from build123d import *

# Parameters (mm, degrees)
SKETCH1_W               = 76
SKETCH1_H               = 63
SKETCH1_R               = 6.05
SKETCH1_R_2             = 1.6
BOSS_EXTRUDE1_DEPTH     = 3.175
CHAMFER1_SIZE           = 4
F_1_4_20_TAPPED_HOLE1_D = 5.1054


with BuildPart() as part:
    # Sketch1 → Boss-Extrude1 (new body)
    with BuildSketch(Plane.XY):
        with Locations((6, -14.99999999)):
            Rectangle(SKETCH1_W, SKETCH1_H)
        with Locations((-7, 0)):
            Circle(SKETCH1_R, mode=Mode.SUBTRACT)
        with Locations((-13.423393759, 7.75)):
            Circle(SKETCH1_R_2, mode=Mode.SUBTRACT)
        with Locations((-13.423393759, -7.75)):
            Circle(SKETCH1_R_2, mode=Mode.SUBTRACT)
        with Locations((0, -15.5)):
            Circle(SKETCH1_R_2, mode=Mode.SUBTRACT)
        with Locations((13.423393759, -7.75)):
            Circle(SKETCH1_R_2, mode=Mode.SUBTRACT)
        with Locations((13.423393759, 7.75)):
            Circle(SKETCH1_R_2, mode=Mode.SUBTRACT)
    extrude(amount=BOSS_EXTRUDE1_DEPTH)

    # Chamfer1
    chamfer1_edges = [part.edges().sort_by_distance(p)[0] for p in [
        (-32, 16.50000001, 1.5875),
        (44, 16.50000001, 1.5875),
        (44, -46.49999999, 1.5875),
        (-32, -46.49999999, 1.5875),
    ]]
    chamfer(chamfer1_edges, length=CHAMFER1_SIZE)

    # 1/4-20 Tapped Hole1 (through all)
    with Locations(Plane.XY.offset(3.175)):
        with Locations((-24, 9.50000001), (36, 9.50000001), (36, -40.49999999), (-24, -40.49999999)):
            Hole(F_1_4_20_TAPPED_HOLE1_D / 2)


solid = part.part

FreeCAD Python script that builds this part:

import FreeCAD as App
import Part
import Sketcher
from FreeCAD import Vector


def edges_at(feature, points):
    """Names of the edges that pass closest to the given points."""
    edges = feature.Shape.Edges
    near = lambda p: min(range(len(edges)), key=lambda i: edges[i].distToShape(Part.Vertex(*p))[0])
    return sorted({f"Edge{near(p) + 1}" for p in points})

doc = App.newDocument("Part")
body = doc.addObject("PartDesign::Body", "Body")

# Sketch on XY plane
sketch1 = doc.addObject("Sketcher::SketchObject", "Sketch")
body.addObject(sketch1)
sketch1.AttachmentSupport = (doc.XY_Plane, [""])
sketch1.MapMode = "FlatFace"
sketch1.addGeometry([
    Part.LineSegment(Vector(-32, 16.5, 0), Vector(-32, -46.5, 0)),  # 0
    Part.LineSegment(Vector(-32, -46.5, 0), Vector(44, -46.5, 0)),  # 1
    Part.LineSegment(Vector(44, -46.5, 0), Vector(44, 16.5, 0)),  # 2
    Part.LineSegment(Vector(44, 16.5, 0), Vector(-32, 16.5, 0)),  # 3
    Part.Circle(Vector(-13.4, -7.8, 0), Vector(0, 0, 1), 1.6),  # 4
    Part.Circle(Vector(0, -15.5, 0), Vector(0, 0, 1), 1.6),  # 5
    Part.Circle(Vector(13.4, -7.8, 0), Vector(0, 0, 1), 1.6),  # 6
    Part.Circle(Vector(-7, 0, 0), Vector(0, 0, 1), 6),  # 7
    Part.Circle(Vector(-13.4, 7.8, 0), Vector(0, 0, 1), 1.6),  # 8
    Part.Circle(Vector(13.4, 7.8, 0), Vector(0, 0, 1), 1.6),  # 9
], False)
sketch1.addConstraint([
    Sketcher.Constraint("Coincident", 0, 2, 1, 1),
    Sketcher.Constraint("Coincident", 1, 2, 2, 1),
    Sketcher.Constraint("Coincident", 2, 2, 3, 1),
    Sketcher.Constraint("Coincident", 3, 2, 0, 1),
    Sketcher.Constraint("Vertical", 0),
    Sketcher.Constraint("Horizontal", 1),
    Sketcher.Constraint("Vertical", 2),
    Sketcher.Constraint("Horizontal", 3),
    Sketcher.Constraint("Equal", 4, 5),
    Sketcher.Constraint("Equal", 5, 6),
    Sketcher.Constraint("Equal", 6, 8),
    Sketcher.Constraint("Equal", 8, 9),
    Sketcher.Constraint("Symmetric", 6, 3, 8, 3, -1, 1),
    Sketcher.Constraint("Symmetric", 4, 3, 9, 3, -1, 1),
    Sketcher.Constraint("Symmetric", 4, 3, 6, 3, -2),
    Sketcher.Constraint("PointOnObject", 5, 3, -2),
    Sketcher.Constraint("PointOnObject", 7, 3, -1),
    Sketcher.Constraint("Diameter", 4, 3.2),
    Sketcher.Constraint("Diameter", 7, 12.1),
    Sketcher.Constraint("DistanceX", 1, 1, 1, 2, 76.0),
    Sketcher.Constraint("DistanceY", 0, 2, 0, 1, 63.0),
    Sketcher.Constraint("DistanceX", 7, 3, -1, 1, 7.0),
    Sketcher.Constraint("DistanceX", 0, 2, -1, 1, 32.0),
    Sketcher.Constraint("DistanceY", 0, 2, 5, 3, 31.0),
    Sketcher.Constraint("DistanceY", 5, 3, -1, 1, 15.5),
    Sketcher.Constraint("DistanceY", 4, 3, 8, 3, 15.5),
    Sketcher.Constraint("DistanceX", 4, 3, -1, 1, 13.423394),
])
pad1 = doc.addObject("PartDesign::Pad", "Pad")
body.addObject(pad1)
pad1.Profile = sketch1
pad1.Length = 3.175
doc.recompute()

chamfer = doc.addObject("PartDesign::Chamfer", "Chamfer")
body.addObject(chamfer)
chamfer.Base = (pad1, edges_at(pad1, [
    (-32, 16.5, 1.587),
    (44, 16.5, 1.587),
    (44, -46.5, 1.587),
    (-32, -46.5, 1.587),
]))
chamfer.Size = 4

# Sketch on XY plane
sketch2 = doc.addObject("Sketcher::SketchObject", "Sketch001")
body.addObject(sketch2)
sketch2.AttachmentSupport = (doc.XY_Plane, [""])
sketch2.MapMode = "FlatFace"
sketch2.AttachmentOffset = App.Placement(Vector(0, 0, 3.175), App.Rotation())
sketch2.addGeometry([
    Part.Circle(Vector(-24, 9.5, 0), Vector(0, 0, 1), 2.6),
    Part.Circle(Vector(36, 9.5, 0), Vector(0, 0, 1), 2.6),
    Part.Circle(Vector(36, -40.5, 0), Vector(0, 0, 1), 2.6),
    Part.Circle(Vector(-24, -40.5, 0), Vector(0, 0, 1), 2.6),
], False)
sketch2.addConstraint([
    Sketcher.Constraint("Equal", 0, 1),
    Sketcher.Constraint("Equal", 1, 2),
    Sketcher.Constraint("Equal", 2, 3),
    Sketcher.Constraint("Horizontal", 0, 3, 1, 3),
    Sketcher.Constraint("Horizontal", 2, 3, 3, 3),
    Sketcher.Constraint("Vertical", 1, 3, 2, 3),
    Sketcher.Constraint("Vertical", 0, 3, 3, 3),
    Sketcher.Constraint("DistanceX", 0, 3, -1, 1, 24.0),
    Sketcher.Constraint("DistanceX", -1, 1, 1, 3, 36.0),
    Sketcher.Constraint("DistanceY", 2, 3, 1, 3, 50.0),
    Sketcher.Constraint("Diameter", 0, 5.1054),
    Sketcher.Constraint("DistanceY", -1, 1, 0, 3, 9.5),
])
doc.recompute()
hole = doc.addObject("PartDesign::Hole", "Hole")
body.addObject(hole)
hole.Profile = sketch2
hole.ThreadType = "None"
hole.Diameter = 5.1054
hole.DepthType = "ThroughAll"

doc.recompute()
